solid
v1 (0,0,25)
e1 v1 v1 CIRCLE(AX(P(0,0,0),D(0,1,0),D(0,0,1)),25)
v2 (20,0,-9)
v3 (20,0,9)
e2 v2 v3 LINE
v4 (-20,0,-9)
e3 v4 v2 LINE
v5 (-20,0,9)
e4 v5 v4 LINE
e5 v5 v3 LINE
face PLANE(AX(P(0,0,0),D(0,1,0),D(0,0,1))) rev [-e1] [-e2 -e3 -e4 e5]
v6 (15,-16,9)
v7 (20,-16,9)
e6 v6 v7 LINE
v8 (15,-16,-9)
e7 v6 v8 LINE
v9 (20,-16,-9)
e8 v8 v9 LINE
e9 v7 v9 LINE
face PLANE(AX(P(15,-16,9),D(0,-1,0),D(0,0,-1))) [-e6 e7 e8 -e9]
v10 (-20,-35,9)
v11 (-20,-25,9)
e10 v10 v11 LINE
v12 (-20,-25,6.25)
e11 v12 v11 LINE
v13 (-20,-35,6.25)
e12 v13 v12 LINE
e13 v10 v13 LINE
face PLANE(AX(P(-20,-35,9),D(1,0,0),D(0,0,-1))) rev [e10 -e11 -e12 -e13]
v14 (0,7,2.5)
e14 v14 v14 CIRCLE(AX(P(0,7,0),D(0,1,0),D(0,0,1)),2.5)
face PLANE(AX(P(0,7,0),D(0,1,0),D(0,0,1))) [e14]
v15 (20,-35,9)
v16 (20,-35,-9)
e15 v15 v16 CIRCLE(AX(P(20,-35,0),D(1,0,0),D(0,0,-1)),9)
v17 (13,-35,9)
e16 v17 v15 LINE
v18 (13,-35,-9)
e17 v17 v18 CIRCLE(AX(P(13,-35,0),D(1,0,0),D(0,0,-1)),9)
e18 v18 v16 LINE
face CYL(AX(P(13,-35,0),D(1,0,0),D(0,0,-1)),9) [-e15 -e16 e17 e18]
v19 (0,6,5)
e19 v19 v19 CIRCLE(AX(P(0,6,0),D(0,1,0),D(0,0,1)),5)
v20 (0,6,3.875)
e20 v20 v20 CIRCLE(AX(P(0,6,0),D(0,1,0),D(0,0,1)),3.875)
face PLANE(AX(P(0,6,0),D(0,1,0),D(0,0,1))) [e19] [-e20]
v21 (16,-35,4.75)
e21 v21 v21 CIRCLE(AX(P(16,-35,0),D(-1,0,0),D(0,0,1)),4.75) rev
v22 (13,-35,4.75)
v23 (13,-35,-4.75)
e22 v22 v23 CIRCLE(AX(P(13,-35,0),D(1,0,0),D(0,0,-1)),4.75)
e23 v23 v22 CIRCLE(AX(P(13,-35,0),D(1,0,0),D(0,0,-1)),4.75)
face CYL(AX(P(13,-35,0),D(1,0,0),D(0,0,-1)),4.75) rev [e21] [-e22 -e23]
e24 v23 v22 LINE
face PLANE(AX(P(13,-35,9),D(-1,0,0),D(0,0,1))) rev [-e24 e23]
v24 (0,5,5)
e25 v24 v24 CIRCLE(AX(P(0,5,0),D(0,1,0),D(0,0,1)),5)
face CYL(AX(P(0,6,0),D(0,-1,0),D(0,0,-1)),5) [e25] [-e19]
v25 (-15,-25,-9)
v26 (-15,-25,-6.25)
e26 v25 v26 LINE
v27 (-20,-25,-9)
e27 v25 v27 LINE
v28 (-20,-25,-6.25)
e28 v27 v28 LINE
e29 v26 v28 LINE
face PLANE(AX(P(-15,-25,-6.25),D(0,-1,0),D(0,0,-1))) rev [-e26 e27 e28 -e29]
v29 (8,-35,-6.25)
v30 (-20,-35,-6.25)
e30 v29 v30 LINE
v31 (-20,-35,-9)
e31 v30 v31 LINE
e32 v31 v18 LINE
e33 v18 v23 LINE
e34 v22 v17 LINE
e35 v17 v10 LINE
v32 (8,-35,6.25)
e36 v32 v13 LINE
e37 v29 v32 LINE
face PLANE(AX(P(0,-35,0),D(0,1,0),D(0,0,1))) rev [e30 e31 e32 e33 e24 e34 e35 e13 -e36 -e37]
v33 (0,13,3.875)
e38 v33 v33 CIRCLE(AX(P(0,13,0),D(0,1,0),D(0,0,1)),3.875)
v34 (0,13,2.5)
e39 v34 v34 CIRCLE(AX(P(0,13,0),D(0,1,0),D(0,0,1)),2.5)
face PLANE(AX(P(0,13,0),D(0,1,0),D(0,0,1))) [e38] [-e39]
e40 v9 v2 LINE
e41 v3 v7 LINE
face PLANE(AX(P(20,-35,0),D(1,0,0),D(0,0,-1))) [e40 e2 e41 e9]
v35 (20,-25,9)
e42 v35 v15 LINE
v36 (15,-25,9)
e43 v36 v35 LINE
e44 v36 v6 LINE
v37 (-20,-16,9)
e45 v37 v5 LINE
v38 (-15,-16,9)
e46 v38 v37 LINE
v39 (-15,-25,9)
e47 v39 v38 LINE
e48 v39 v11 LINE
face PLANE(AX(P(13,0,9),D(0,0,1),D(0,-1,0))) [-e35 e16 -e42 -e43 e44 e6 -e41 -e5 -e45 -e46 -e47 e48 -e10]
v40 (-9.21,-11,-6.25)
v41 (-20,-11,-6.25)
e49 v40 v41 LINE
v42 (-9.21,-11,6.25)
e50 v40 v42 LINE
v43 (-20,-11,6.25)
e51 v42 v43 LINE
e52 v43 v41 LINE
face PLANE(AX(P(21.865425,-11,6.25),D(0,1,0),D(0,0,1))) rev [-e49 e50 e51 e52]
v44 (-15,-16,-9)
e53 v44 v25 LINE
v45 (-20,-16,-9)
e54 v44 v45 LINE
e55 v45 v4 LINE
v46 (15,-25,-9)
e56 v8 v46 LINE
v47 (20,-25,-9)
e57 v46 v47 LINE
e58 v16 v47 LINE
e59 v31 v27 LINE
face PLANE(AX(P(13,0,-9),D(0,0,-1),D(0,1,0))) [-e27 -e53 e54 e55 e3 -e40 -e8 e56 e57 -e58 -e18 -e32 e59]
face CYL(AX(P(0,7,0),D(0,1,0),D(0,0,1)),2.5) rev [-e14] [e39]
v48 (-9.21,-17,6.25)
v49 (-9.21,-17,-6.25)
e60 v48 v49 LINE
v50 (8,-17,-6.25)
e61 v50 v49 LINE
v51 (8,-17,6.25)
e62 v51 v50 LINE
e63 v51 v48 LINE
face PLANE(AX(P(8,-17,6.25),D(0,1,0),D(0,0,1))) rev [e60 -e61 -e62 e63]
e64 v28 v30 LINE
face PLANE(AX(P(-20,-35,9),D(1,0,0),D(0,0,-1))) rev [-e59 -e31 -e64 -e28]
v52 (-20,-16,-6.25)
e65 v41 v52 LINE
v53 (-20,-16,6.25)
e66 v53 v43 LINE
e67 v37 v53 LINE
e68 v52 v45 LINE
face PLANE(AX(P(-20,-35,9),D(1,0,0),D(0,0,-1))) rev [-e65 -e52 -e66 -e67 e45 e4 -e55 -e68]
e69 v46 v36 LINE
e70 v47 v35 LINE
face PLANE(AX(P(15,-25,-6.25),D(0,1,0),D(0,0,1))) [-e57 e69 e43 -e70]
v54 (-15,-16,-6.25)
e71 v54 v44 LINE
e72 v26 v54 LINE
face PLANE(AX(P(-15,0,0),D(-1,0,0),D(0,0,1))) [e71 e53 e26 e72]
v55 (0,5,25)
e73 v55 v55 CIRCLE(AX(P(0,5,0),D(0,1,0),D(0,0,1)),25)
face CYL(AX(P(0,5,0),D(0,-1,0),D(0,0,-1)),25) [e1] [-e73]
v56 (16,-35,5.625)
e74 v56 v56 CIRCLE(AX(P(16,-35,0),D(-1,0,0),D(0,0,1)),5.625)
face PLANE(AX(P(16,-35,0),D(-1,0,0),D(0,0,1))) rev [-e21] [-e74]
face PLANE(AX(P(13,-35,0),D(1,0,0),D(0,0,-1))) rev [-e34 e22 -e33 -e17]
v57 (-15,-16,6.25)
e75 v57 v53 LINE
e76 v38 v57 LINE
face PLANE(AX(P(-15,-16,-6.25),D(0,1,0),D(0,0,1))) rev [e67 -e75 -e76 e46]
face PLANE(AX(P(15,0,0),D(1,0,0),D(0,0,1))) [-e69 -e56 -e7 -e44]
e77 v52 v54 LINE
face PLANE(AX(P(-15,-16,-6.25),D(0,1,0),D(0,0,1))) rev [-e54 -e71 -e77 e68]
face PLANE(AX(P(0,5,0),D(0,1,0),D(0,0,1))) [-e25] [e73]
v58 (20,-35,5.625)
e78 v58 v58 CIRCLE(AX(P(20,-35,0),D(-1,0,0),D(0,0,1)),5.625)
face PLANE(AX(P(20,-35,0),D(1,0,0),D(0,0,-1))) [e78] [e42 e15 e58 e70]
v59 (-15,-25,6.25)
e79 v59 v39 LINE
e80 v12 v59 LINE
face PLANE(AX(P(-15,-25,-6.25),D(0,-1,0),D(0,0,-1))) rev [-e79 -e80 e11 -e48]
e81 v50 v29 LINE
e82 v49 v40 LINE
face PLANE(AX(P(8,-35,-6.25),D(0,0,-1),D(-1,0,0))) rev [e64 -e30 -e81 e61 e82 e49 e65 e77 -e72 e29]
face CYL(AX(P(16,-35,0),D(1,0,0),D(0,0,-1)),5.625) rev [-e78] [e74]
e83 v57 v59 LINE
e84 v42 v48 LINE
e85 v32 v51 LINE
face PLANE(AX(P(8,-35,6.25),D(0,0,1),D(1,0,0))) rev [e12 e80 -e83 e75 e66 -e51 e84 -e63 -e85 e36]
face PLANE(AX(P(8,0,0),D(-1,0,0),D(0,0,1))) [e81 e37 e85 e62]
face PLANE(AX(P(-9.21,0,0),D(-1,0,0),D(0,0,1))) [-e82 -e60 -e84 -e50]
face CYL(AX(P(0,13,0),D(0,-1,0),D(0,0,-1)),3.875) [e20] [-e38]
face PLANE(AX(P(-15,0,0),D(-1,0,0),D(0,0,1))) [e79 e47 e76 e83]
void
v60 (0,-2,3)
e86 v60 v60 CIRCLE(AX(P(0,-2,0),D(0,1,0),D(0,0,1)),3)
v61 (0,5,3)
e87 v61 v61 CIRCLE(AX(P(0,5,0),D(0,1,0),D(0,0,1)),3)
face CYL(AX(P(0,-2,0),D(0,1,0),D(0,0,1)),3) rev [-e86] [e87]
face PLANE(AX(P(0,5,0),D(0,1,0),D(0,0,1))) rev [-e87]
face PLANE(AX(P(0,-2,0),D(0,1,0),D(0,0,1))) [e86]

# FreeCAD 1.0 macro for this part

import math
import FreeCAD as App
import Part
import Sketcher
Q = App.Units.Quantity

doc = App.newDocument("Part")
body = doc.addObject("PartDesign::Body", "Body")

# Sketch on XZ plane
sketch1 = body.newObject("Sketcher::SketchObject", "Sketch")
sketch1.AttachmentSupport = (doc.getObject("XZ_Plane"), [""])
sketch1.MapMode = "FlatFace"
sketch1.addGeometry(Part.Circle(App.Vector(0, 0, 0), App.Vector(0, 0, 1), 25), False)
sketch1.addConstraint([
    Sketcher.Constraint("Coincident", 0, 3, -1, 1),
    Sketcher.Constraint("Diameter", 0, Q("50 mm")),
])
pad1 = body.newObject("PartDesign::Pad", "Pad")
pad1.Profile = sketch1
pad1.Length = 5
pad1.Reversed = True

# Sketch on YZ plane
sketch2 = body.newObject("Sketcher::SketchObject", "Sketch001")
sketch2.AttachmentSupport = (doc.getObject("YZ_Plane"), [""])
sketch2.MapMode = "FlatFace"
sketch2.AttachmentOffset = App.Placement(App.Vector(0, 0, 20), App.Rotation())
sketch2.addGeometry([
    Part.LineSegment(App.Vector(0, 9, 0), App.Vector(-35, 9, 0)),  # 0
    Part.ArcOfCircle(Part.Circle(App.Vector(-35, 0, 0), App.Vector(0, 0, 1), 9), math.radians(90), math.radians(270)),  # 1
    Part.LineSegment(App.Vector(-35, -9, 0), App.Vector(0, -9, 0)),  # 2
    Part.LineSegment(App.Vector(0, -9, 0), App.Vector(0, 9, 0)),  # 3
    Part.Circle(App.Vector(-35, 0, 0), App.Vector(0, 0, 1), 4.75),  # 4
], False)
sketch2.addConstraint([
    Sketcher.Constraint("Tangent", 0, 2, 1, 1),
    Sketcher.Constraint("Tangent", 1, 2, 2, 1),
    Sketcher.Constraint("Coincident", 2, 2, 3, 1),
    Sketcher.Constraint("Coincident", 3, 2, 0, 1),
    Sketcher.Constraint("Horizontal", 0),
    Sketcher.Constraint("Horizontal", 2),
    Sketcher.Constraint("Vertical", 3),
    Sketcher.Constraint("Coincident", 4, 3, 1, 3),
    Sketcher.Constraint("Symmetric", 2, 2, 3, 2, -1, 1),
    Sketcher.Constraint("Radius", 1, Q("9 mm")),
    Sketcher.Constraint("Diameter", 4, Q("9.5 mm")),
    Sketcher.Constraint("DistanceX", 0, 2, 0, 1, Q("35 mm")),
])
pad2 = body.newObject("PartDesign::Pad", "Pad001")
pad2.Profile = sketch2
pad2.Length = 7
pad2.Reversed = True

# Sketch on YZ plane
sketch3 = body.newObject("Sketcher::SketchObject", "Sketch002")
sketch3.AttachmentSupport = (doc.getObject("YZ_Plane"), [""])
sketch3.MapMode = "FlatFace"
sketch3.AttachmentOffset = App.Placement(App.Vector(0, 0, 20), App.Rotation())
sketch3.addGeometry(Part.Circle(App.Vector(-35, 0, 0), App.Vector(0, 0, 1), 5.625), False)
sketch3.addConstraint([
    Sketcher.Constraint("PointOnObject", 0, 3, -1),
    Sketcher.Constraint("Diameter", 0, Q("11.25 mm")),
    Sketcher.Constraint("DistanceX", 0, 3, -1, 1, Q("35 mm")),
])
pocket1 = body.newObject("PartDesign::Pocket", "Pocket")
pocket1.Profile = sketch3
pocket1.Length = 4

# Sketch on XZ plane
sketch4 = body.newObject("Sketcher::SketchObject", "Sketch003")
sketch4.AttachmentSupport = (doc.getObject("XZ_Plane"), [""])
sketch4.MapMode = "FlatFace"
sketch4.addGeometry([
    Part.LineSegment(App.Vector(13, -9, 0), App.Vector(13, 9, 0)),
    Part.LineSegment(App.Vector(13, 9, 0), App.Vector(-20, 9, 0)),
    Part.LineSegment(App.Vector(-20, 9, 0), App.Vector(-20, -9, 0)),
    Part.LineSegment(App.Vector(-20, -9, 0), App.Vector(13, -9, 0)),
], False)
sketch4.addConstraint([
    Sketcher.Constraint("Coincident", 0, 2, 1, 1),
    Sketcher.Constraint("Coincident", 1, 2, 2, 1),
    Sketcher.Constraint("Coincident", 2, 2, 3, 1),
    Sketcher.Constraint("Coincident", 3, 2, 0, 1),
    Sketcher.Constraint("Vertical", 0),
    Sketcher.Constraint("Horizontal", 1),
    Sketcher.Constraint("Vertical", 2),
    Sketcher.Constraint("Horizontal", 3),
    Sketcher.Constraint("DistanceX", 1, 2, 1, 1, Q("33 mm")),
    Sketcher.Constraint("DistanceY", 0, 1, 0, 2, Q("18 mm")),
    Sketcher.Constraint("DistanceX", -1, 1, 0, 2, Q("13 mm")),
    Sketcher.Constraint("DistanceY", -1, 1, 0, 2, Q("9 mm")),
])
pad3 = body.newObject("PartDesign::Pad", "Pad002")
pad3.Profile = sketch4
pad3.Length = 35

# Sketch on YZ plane
sketch5 = body.newObject("Sketcher::SketchObject", "Sketch004")
sketch5.AttachmentSupport = (doc.getObject("YZ_Plane"), [""])
sketch5.MapMode = "FlatFace"
sketch5.AttachmentOffset = App.Placement(App.Vector(0, 0, -20), App.Rotation())
sketch5.addGeometry([
    Part.LineSegment(App.Vector(-17, -6.25, 0), App.Vector(-35, -6.25, 0)),
    Part.LineSegment(App.Vector(-35, -6.25, 0), App.Vector(-35, 6.25, 0)),
    Part.LineSegment(App.Vector(-35, 6.25, 0), App.Vector(-17, 6.25, 0)),
    Part.LineSegment(App.Vector(-17, 6.25, 0), App.Vector(-17, -6.25, 0)),
], False)
sketch5.addConstraint([
    Sketcher.Constraint("Coincident", 0, 2, 1, 1),
    Sketcher.Constraint("Coincident", 1, 2, 2, 1),
    Sketcher.Constraint("Coincident", 2, 2, 3, 1),
    Sketcher.Constraint("Coincident", 3, 2, 0, 1),
    Sketcher.Constraint("Horizontal", 0),
    Sketcher.Constraint("Vertical", 1),
    Sketcher.Constraint("Horizontal", 2),
    Sketcher.Constraint("Vertical", 3),
    Sketcher.Constraint("DistanceX", 0, 2, 0, 1, Q("18 mm")),
    Sketcher.Constraint("DistanceY", 1, 1, 1, 2, Q("12.5 mm")),
    Sketcher.Constraint("DistanceX", 0, 2, -1, 1, Q("35 mm")),
    Sketcher.Constraint("DistanceY", 0, 2, -1, 1, Q("6.25 mm")),
])
pocket2 = body.newObject("PartDesign::Pocket", "Pocket001")
pocket2.Profile = sketch5
pocket2.Length = 28
pocket2.Reversed = True

# Sketch on YZ plane
sketch6 = body.newObject("Sketcher::SketchObject", "Sketch005")
sketch6.AttachmentSupport = (doc.getObject("YZ_Plane"), [""])
sketch6.MapMode = "FlatFace"
sketch6.AttachmentOffset = App.Placement(App.Vector(0, 0, -20), App.Rotation())
sketch6.addGeometry([
    Part.LineSegment(App.Vector(-11, -6.25, 0), App.Vector(-17, -6.25, 0)),
    Part.LineSegment(App.Vector(-17, -6.25, 0), App.Vector(-17, 6.25, 0)),
    Part.LineSegment(App.Vector(-17, 6.25, 0), App.Vector(-11, 6.25, 0)),
    Part.LineSegment(App.Vector(-11, 6.25, 0), App.Vector(-11, -6.25, 0)),
], False)
sketch6.addConstraint([
    Sketcher.Constraint("Coincident", 0, 2, 1, 1),
    Sketcher.Constraint("Coincident", 1, 2, 2, 1),
    Sketcher.Constraint("Coincident", 2, 2, 3, 1),
    Sketcher.Constraint("Coincident", 3, 2, 0, 1),
    Sketcher.Constraint("Horizontal", 0),
    Sketcher.Constraint("Vertical", 1),
    Sketcher.Constraint("Horizontal", 2),
    Sketcher.Constraint("Vertical", 3),
    Sketcher.Constraint("DistanceX", 0, 2, 0, 1, Q("6 mm")),
    Sketcher.Constraint("DistanceY", 1, 1, 1, 2, Q("12.5 mm")),
    Sketcher.Constraint("DistanceX", 0, 2, -1, 1, Q("17 mm")),
    Sketcher.Constraint("DistanceY", 0, 2, -1, 1, Q("6.25 mm")),
])
pocket3 = body.newObject("PartDesign::Pocket", "Pocket002")
pocket3.Profile = sketch6
pocket3.Length = 10.79
pocket3.Reversed = True

# Sketch on YZ plane
sketch7 = body.newObject("Sketcher::SketchObject", "Sketch006")
sketch7.AttachmentSupport = (doc.getObject("YZ_Plane"), [""])
sketch7.MapMode = "FlatFace"
sketch7.AttachmentOffset = App.Placement(App.Vector(0, 0, -20), App.Rotation())
sketch7.addGeometry([
    Part.LineSegment(App.Vector(-25, -9, 0), App.Vector(-25, 9, 0)),
    Part.LineSegment(App.Vector(-25, 9, 0), App.Vector(-16, 9, 0)),
    Part.LineSegment(App.Vector(-16, 9, 0), App.Vector(-16, -9, 0)),
    Part.LineSegment(App.Vector(-16, -9, 0), App.Vector(-25, -9, 0)),
], False)
sketch7.addConstraint([
    Sketcher.Constraint("Coincident", 0, 2, 1, 1),
    Sketcher.Constraint("Coincident", 1, 2, 2, 1),
    Sketcher.Constraint("Coincident", 2, 2, 3, 1),
    Sketcher.Constraint("Coincident", 3, 2, 0, 1),
    Sketcher.Constraint("Vertical", 0),
    Sketcher.Constraint("Horizontal", 1),
    Sketcher.Constraint("Vertical", 2),
    Sketcher.Constraint("Horizontal", 3),
    Sketcher.Constraint("DistanceX", 1, 1, 1, 2, Q("9 mm")),
    Sketcher.Constraint("DistanceY", 0, 1, 0, 2, Q("18 mm")),
    Sketcher.Constraint("DistanceX", 0, 2, -1, 1, Q("25 mm")),
    Sketcher.Constraint("DistanceY", -1, 1, 0, 2, Q("9 mm")),
])
pocket4 = body.newObject("PartDesign::Pocket", "Pocket003")
pocket4.Profile = sketch7
pocket4.Length = 5
pocket4.Reversed = True
doc.recompute()

mirrored = body.newObject("PartDesign::Mirrored", "Mirrored")
mirrored.Originals = [pocket4]
mirrored.MirrorPlane = (doc.getObject("YZ_Plane"), [""])
body.Tip = mirrored

# Sketch on XZ plane
sketch8 = body.newObject("Sketcher::SketchObject", "Sketch007")
sketch8.AttachmentSupport = (doc.getObject("XZ_Plane"), [""])
sketch8.MapMode = "FlatFace"
sketch8.AttachmentOffset = App.Placement(App.Vector(0, 0, -5), App.Rotation())
sketch8.addGeometry(Part.Circle(App.Vector(0, 0, 0), App.Vector(0, 0, 1), 5), False)
sketch8.addConstraint([
    Sketcher.Constraint("Coincident", 0, 3, -1, 1),
    Sketcher.Constraint("Diameter", 0, Q("10 mm")),
])
pad4 = body.newObject("PartDesign::Pad", "Pad003")
pad4.Profile = sketch8
pad4.Length = 1
pad4.Reversed = True

# Sketch on XZ plane
sketch9 = body.newObject("Sketcher::SketchObject", "Sketch008")
sketch9.AttachmentSupport = (doc.getObject("XZ_Plane"), [""])
sketch9.MapMode = "FlatFace"
sketch9.AttachmentOffset = App.Placement(App.Vector(0, 0, -6), App.Rotation())
sketch9.addGeometry(Part.Circle(App.Vector(0, 0, 0), App.Vector(0, 0, 1), 3.875), False)
sketch9.addConstraint([
    Sketcher.Constraint("Coincident", 0, 3, -1, 1),
    Sketcher.Constraint("Diameter", 0, Q("7.75 mm")),
])
pad5 = body.newObject("PartDesign::Pad", "Pad004")
pad5.Profile = sketch9
pad5.Length = 7
pad5.Reversed = True

# Sketch on XZ plane
sketch10 = body.newObject("Sketcher::SketchObject", "Sketch009")
sketch10.AttachmentSupport = (doc.getObject("XZ_Plane"), [""])
sketch10.MapMode = "FlatFace"
sketch10.AttachmentOffset = App.Placement(App.Vector(0, 0, -13), App.Rotation())
sketch10.addGeometry(Part.Circle(App.Vector(0, 0, 0), App.Vector(0, 0, 1), 2.5), False)
sketch10.addConstraint([
    Sketcher.Constraint("Coincident", 0, 3, -1, 1),
    Sketcher.Constraint("Diameter", 0, Q("5 mm")),
])
pocket5 = body.newObject("PartDesign::Pocket", "Pocket004")
pocket5.Profile = sketch10
pocket5.Length = 6
pocket5.Reversed = True

# Sketch on XZ plane
sketch11 = body.newObject("Sketcher::SketchObject", "Sketch010")
sketch11.AttachmentSupport = (doc.getObject("XZ_Plane"), [""])
sketch11.MapMode = "FlatFace"
sketch11.AttachmentOffset = App.Placement(App.Vector(0, 0, -5), App.Rotation())
sketch11.addGeometry(Part.Circle(App.Vector(0, 0, 0), App.Vector(0, 0, 1), 3), False)
sketch11.addConstraint([
    Sketcher.Constraint("Coincident", 0, 3, -1, 1),
    Sketcher.Constraint("Diameter", 0, Q("6 mm")),
])
pocket6 = body.newObject("PartDesign::Pocket", "Pocket005")
pocket6.Profile = sketch11
pocket6.Length = 7
pocket6.Reversed = True

doc.recompute()
